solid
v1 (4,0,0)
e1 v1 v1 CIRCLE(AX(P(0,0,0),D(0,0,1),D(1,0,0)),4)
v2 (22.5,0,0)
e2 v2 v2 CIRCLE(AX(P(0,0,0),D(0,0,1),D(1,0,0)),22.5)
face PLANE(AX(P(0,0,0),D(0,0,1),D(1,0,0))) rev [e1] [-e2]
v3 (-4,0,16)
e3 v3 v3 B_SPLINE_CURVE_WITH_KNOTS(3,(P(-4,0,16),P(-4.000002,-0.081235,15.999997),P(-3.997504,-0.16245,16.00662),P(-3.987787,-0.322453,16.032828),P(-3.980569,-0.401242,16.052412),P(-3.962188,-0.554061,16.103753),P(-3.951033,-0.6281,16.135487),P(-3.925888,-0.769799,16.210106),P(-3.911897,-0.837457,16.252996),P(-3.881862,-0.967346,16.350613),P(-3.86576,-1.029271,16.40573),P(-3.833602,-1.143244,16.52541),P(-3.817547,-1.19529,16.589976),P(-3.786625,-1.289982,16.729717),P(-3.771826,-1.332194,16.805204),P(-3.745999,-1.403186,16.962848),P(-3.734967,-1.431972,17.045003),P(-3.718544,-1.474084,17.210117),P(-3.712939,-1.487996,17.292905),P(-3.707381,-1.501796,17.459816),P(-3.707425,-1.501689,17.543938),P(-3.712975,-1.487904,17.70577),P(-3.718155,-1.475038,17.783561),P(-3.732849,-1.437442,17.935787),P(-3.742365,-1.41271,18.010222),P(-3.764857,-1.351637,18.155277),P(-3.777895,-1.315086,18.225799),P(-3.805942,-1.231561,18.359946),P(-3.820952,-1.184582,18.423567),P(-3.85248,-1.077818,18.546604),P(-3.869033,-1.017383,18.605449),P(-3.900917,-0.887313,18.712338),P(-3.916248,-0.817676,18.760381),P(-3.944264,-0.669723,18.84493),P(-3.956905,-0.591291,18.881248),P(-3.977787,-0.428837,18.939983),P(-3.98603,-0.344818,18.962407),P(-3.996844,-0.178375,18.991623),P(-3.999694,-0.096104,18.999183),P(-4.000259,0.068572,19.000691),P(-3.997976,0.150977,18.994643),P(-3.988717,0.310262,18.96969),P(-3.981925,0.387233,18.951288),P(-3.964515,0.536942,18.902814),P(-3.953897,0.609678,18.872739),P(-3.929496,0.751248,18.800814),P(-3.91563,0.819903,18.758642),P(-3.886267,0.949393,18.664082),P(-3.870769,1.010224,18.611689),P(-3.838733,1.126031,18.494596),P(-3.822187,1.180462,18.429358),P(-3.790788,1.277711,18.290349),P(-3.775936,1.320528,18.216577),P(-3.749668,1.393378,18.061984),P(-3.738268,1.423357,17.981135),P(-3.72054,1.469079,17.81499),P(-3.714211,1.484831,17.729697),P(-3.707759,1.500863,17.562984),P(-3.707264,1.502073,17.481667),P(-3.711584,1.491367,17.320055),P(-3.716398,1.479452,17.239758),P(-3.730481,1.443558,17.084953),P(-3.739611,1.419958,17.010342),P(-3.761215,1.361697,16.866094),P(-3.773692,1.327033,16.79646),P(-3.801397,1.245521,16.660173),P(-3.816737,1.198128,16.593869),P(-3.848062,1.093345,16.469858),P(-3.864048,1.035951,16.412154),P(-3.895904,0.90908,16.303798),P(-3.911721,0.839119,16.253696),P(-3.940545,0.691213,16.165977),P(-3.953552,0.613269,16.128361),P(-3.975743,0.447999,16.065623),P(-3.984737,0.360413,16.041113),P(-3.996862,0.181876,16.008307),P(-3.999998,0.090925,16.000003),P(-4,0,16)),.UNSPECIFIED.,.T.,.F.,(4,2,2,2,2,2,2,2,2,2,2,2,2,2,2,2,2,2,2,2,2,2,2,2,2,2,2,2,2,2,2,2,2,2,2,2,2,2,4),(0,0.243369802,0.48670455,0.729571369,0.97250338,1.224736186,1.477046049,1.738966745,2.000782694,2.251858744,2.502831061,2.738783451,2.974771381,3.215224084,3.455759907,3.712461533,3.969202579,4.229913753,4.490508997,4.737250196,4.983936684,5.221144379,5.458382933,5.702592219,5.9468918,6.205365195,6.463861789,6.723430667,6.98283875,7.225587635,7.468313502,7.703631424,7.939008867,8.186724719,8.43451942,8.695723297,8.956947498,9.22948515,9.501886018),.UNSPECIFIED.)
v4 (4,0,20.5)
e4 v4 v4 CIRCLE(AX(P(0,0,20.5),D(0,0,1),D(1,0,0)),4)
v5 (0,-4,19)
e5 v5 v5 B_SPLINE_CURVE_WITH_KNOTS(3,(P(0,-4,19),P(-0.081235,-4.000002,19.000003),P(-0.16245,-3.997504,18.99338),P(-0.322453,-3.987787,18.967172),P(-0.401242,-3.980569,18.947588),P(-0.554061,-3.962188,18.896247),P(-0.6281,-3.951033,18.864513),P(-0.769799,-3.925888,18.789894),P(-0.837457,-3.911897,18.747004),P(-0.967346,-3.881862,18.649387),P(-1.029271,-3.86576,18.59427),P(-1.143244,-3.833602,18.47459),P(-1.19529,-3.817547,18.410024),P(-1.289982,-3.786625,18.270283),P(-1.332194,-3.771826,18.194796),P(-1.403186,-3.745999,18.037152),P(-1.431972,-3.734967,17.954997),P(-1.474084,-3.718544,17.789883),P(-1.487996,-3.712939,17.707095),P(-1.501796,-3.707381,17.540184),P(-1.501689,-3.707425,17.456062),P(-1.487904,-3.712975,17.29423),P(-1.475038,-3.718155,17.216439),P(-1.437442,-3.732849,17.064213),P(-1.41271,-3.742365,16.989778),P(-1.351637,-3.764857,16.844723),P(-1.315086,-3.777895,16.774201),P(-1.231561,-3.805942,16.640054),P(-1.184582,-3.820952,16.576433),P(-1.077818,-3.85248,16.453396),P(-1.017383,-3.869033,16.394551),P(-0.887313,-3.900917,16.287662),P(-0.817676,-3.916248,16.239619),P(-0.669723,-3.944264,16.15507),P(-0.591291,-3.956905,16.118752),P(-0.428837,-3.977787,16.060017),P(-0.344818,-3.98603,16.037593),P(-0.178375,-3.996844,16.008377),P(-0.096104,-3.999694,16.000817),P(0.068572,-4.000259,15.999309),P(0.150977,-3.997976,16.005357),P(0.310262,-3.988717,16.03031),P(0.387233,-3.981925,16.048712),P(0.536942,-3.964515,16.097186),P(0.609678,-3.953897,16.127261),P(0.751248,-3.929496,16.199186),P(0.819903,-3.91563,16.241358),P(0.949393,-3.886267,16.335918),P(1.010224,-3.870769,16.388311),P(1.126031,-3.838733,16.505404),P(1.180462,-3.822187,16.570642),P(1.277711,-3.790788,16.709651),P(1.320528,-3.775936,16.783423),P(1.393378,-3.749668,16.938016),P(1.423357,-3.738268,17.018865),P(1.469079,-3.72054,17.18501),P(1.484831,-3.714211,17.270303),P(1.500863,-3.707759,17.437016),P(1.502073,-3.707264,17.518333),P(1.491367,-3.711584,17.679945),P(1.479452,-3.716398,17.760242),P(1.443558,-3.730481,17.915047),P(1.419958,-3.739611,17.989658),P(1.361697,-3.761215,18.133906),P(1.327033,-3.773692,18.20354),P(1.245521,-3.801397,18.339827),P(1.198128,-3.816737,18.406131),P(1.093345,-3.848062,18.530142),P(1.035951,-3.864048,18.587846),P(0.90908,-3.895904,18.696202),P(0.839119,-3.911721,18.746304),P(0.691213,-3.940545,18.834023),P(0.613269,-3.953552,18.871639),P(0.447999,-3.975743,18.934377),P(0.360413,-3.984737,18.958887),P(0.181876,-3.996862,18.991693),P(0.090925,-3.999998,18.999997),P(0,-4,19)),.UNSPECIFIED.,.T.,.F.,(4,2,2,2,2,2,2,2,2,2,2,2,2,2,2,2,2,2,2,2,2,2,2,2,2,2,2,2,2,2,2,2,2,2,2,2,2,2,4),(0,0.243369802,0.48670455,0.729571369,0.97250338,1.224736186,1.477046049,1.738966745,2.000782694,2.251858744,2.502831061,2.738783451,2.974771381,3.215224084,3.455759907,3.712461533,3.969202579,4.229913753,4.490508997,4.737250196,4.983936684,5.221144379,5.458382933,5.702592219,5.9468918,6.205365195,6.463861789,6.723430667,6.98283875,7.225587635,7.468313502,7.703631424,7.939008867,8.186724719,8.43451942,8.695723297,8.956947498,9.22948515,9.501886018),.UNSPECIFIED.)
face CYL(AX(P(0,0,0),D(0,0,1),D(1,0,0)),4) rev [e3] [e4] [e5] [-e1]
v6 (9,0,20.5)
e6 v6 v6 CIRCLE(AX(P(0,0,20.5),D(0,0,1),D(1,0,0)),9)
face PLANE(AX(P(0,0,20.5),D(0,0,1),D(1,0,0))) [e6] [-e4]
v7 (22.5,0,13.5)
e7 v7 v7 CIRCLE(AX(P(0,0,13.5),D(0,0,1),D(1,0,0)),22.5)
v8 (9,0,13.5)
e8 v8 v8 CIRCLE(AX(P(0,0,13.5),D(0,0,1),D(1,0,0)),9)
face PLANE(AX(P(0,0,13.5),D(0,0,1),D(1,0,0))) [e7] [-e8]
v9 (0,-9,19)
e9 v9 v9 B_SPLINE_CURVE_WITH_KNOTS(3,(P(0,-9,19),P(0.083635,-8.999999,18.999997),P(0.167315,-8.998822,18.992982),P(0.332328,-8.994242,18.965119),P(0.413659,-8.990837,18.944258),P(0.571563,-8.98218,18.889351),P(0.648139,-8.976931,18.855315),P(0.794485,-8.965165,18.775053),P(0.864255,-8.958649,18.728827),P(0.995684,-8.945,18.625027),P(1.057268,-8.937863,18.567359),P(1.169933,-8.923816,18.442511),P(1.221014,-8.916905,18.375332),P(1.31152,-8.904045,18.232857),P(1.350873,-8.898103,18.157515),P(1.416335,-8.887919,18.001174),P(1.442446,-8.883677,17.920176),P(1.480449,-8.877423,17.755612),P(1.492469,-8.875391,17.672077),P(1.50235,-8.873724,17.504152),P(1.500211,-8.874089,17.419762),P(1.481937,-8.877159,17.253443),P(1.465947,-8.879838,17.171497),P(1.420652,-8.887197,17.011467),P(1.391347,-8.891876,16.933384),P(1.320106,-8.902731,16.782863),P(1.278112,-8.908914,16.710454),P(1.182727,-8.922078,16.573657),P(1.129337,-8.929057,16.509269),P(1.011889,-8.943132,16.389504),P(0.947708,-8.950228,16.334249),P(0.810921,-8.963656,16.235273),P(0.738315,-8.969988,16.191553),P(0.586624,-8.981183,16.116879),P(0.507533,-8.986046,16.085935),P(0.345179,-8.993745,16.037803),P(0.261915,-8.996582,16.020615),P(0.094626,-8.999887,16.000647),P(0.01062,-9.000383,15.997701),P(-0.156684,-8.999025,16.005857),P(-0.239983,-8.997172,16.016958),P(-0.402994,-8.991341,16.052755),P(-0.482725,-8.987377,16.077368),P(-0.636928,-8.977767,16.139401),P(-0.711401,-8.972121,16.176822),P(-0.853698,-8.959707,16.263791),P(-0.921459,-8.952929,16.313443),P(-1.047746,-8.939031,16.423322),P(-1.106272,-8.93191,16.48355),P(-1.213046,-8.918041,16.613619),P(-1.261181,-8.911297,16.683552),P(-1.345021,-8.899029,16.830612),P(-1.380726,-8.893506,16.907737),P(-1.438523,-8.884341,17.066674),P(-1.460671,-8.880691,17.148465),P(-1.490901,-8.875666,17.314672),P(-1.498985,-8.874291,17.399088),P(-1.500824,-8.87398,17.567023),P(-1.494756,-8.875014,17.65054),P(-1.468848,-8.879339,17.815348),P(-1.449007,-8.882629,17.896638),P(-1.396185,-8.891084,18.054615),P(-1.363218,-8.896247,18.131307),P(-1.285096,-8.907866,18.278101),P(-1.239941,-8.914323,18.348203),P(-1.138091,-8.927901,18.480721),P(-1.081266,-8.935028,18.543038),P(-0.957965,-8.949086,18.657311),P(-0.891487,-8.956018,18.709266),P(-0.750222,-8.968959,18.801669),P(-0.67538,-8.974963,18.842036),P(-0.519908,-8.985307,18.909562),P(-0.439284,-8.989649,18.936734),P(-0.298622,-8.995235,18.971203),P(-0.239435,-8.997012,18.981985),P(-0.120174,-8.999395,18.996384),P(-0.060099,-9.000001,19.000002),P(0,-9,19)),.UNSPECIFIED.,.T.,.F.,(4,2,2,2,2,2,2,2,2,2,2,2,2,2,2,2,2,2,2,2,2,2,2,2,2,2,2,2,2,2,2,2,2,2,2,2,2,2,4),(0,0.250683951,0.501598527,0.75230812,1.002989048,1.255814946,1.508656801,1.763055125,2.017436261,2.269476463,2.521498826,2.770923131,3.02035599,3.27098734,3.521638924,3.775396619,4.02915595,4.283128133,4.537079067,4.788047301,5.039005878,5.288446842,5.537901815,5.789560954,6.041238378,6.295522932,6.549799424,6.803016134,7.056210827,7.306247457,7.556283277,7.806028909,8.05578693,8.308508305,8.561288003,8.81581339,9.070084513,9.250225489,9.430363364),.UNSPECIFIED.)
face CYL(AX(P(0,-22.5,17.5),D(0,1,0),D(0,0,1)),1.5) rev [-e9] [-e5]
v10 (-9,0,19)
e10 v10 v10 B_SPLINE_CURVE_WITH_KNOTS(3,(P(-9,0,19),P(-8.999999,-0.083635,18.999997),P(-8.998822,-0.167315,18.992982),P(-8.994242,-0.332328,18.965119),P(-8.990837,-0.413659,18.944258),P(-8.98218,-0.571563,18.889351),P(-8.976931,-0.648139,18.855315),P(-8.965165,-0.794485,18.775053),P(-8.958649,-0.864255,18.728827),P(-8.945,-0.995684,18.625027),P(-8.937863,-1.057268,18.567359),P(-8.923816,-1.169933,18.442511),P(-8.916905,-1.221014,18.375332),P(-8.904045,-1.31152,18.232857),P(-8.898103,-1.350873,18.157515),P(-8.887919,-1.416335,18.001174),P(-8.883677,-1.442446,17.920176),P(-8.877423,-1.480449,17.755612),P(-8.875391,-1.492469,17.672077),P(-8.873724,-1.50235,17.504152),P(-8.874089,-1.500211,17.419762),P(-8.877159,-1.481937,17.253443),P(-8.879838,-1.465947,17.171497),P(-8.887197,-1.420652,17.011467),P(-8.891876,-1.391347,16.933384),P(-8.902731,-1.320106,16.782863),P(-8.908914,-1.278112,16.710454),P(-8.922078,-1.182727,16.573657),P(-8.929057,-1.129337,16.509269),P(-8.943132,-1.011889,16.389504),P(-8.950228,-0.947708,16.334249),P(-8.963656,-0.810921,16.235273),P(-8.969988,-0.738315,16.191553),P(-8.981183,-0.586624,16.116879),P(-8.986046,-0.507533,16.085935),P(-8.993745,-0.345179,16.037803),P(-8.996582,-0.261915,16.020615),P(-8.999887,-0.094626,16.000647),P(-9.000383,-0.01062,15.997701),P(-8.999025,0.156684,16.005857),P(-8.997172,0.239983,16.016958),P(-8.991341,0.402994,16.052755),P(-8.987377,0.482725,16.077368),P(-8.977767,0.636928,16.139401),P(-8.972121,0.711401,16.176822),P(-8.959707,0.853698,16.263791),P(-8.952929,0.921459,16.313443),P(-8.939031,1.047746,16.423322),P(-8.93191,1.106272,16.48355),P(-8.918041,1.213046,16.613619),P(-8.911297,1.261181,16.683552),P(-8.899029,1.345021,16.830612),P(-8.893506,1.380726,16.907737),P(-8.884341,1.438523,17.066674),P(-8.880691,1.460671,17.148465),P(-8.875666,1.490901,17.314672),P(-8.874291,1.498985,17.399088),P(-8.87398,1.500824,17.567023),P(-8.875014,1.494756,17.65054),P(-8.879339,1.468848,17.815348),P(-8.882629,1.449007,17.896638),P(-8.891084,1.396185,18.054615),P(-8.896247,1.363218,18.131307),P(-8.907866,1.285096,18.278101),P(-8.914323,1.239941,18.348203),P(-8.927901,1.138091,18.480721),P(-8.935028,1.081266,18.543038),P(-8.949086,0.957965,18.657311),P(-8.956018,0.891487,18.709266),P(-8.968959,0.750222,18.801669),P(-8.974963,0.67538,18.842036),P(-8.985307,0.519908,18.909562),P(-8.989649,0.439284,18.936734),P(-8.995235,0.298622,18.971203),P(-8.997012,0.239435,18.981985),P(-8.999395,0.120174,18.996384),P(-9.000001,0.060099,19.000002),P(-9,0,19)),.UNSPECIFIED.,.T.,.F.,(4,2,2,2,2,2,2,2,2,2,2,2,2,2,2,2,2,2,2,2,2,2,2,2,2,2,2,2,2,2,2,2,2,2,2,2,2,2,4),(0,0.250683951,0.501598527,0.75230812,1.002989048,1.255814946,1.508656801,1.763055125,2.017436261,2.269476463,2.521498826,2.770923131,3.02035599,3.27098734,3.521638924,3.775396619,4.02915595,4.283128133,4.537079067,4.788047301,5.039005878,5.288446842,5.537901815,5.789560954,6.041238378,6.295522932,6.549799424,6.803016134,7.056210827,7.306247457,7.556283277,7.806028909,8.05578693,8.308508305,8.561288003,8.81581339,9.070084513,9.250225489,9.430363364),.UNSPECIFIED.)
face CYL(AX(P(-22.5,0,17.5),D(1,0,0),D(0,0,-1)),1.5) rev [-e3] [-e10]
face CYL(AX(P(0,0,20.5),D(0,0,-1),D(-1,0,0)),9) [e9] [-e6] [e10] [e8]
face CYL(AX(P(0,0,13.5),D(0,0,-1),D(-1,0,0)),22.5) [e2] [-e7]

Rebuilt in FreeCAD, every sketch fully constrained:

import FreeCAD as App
import Part
import Sketcher
from FreeCAD import Vector
Q = App.Units.Quantity

doc = App.newDocument("Part")
body = doc.addObject("PartDesign::Body", "Body")

sketch1 = body.newObject("Sketcher::SketchObject", "Sketch")
sketch1.AttachmentSupport = (doc.getObject("XY_Plane"), [""])
sketch1.MapMode = "FlatFace"
sketch1.addGeometry(Part.Circle(Vector(0, 0, 0), Vector(0, 0, 1), 22.5), False)
sketch1.addConstraint([
    Sketcher.Constraint("Coincident", 0, 3, -1, 1),
    Sketcher.Constraint("Diameter", 0, Q("45 mm")),
])
pad1 = body.newObject("PartDesign::Pad", "Pad")
pad1.Profile = sketch1
pad1.Length = 13.5

sketch2 = body.newObject("Sketcher::SketchObject", "Sketch001")
sketch2.AttachmentSupport = (doc.getObject("XY_Plane"), [""])
sketch2.MapMode = "FlatFace"
sketch2.AttachmentOffset = App.Placement(Vector(0, 0, 13.5), App.Rotation())
sketch2.addGeometry(Part.Circle(Vector(0, 0, 0), Vector(0, 0, 1), 9), False)
sketch2.addConstraint([
    Sketcher.Constraint("Coincident", 0, 3, -1, 1),
    Sketcher.Constraint("Diameter", 0, Q("18 mm")),
])
pad2 = body.newObject("PartDesign::Pad", "Pad001")
pad2.Profile = sketch2
pad2.Length = 7

sketch3 = body.newObject("Sketcher::SketchObject", "Sketch002")
sketch3.AttachmentSupport = (doc.getObject("XY_Plane"), [""])
sketch3.MapMode = "FlatFace"
sketch3.AttachmentOffset = App.Placement(Vector(0, 0, 20.5), App.Rotation())
sketch3.addGeometry(Part.Circle(Vector(0, 0, 0), Vector(0, 0, 1), 4), False)
sketch3.addConstraint([
    Sketcher.Constraint("Coincident", 0, 3, -1, 1),
    Sketcher.Constraint("Diameter", 0, Q("8 mm")),
])
pocket1 = body.newObject("PartDesign::Pocket", "Pocket")
pocket1.Profile = sketch3
pocket1.Type = "ThroughAll"

sketch4 = body.newObject("Sketcher::SketchObject", "Sketch003")
sketch4.AttachmentSupport = (doc.getObject("XZ_Plane"), [""])
sketch4.MapMode = "FlatFace"
sketch4.addGeometry(Part.Circle(Vector(0, 17.5, 0), Vector(0, 0, 1), 1.5), False)
sketch4.addConstraint([
    Sketcher.Constraint("PointOnObject", 0, 3, -2),
    Sketcher.Constraint("Diameter", 0, Q("3 mm")),
    Sketcher.Constraint("DistanceY", -1, 1, 0, 3, Q("17.5 mm")),
])
pocket2 = body.newObject("PartDesign::Pocket", "Pocket001")
pocket2.Profile = sketch4
pocket2.Type = "ThroughAll"
pocket2.Reversed = True

sketch5 = body.newObject("Sketcher::SketchObject", "Sketch004")
sketch5.AttachmentSupport = (doc.getObject("YZ_Plane"), [""])
sketch5.MapMode = "FlatFace"
sketch5.addGeometry(Part.Circle(Vector(0, 17.5, 0), Vector(0, 0, 1), 1.5), False)
sketch5.addConstraint([
    Sketcher.Constraint("PointOnObject", 0, 3, -2),
    Sketcher.Constraint("Diameter", 0, Q("3 mm")),
    Sketcher.Constraint("DistanceY", -1, 1, 0, 3, Q("17.5 mm")),
])
pocket3 = body.newObject("PartDesign::Pocket", "Pocket002")
pocket3.Profile = sketch5
pocket3.Type = "ThroughAll"

doc.recompute()
